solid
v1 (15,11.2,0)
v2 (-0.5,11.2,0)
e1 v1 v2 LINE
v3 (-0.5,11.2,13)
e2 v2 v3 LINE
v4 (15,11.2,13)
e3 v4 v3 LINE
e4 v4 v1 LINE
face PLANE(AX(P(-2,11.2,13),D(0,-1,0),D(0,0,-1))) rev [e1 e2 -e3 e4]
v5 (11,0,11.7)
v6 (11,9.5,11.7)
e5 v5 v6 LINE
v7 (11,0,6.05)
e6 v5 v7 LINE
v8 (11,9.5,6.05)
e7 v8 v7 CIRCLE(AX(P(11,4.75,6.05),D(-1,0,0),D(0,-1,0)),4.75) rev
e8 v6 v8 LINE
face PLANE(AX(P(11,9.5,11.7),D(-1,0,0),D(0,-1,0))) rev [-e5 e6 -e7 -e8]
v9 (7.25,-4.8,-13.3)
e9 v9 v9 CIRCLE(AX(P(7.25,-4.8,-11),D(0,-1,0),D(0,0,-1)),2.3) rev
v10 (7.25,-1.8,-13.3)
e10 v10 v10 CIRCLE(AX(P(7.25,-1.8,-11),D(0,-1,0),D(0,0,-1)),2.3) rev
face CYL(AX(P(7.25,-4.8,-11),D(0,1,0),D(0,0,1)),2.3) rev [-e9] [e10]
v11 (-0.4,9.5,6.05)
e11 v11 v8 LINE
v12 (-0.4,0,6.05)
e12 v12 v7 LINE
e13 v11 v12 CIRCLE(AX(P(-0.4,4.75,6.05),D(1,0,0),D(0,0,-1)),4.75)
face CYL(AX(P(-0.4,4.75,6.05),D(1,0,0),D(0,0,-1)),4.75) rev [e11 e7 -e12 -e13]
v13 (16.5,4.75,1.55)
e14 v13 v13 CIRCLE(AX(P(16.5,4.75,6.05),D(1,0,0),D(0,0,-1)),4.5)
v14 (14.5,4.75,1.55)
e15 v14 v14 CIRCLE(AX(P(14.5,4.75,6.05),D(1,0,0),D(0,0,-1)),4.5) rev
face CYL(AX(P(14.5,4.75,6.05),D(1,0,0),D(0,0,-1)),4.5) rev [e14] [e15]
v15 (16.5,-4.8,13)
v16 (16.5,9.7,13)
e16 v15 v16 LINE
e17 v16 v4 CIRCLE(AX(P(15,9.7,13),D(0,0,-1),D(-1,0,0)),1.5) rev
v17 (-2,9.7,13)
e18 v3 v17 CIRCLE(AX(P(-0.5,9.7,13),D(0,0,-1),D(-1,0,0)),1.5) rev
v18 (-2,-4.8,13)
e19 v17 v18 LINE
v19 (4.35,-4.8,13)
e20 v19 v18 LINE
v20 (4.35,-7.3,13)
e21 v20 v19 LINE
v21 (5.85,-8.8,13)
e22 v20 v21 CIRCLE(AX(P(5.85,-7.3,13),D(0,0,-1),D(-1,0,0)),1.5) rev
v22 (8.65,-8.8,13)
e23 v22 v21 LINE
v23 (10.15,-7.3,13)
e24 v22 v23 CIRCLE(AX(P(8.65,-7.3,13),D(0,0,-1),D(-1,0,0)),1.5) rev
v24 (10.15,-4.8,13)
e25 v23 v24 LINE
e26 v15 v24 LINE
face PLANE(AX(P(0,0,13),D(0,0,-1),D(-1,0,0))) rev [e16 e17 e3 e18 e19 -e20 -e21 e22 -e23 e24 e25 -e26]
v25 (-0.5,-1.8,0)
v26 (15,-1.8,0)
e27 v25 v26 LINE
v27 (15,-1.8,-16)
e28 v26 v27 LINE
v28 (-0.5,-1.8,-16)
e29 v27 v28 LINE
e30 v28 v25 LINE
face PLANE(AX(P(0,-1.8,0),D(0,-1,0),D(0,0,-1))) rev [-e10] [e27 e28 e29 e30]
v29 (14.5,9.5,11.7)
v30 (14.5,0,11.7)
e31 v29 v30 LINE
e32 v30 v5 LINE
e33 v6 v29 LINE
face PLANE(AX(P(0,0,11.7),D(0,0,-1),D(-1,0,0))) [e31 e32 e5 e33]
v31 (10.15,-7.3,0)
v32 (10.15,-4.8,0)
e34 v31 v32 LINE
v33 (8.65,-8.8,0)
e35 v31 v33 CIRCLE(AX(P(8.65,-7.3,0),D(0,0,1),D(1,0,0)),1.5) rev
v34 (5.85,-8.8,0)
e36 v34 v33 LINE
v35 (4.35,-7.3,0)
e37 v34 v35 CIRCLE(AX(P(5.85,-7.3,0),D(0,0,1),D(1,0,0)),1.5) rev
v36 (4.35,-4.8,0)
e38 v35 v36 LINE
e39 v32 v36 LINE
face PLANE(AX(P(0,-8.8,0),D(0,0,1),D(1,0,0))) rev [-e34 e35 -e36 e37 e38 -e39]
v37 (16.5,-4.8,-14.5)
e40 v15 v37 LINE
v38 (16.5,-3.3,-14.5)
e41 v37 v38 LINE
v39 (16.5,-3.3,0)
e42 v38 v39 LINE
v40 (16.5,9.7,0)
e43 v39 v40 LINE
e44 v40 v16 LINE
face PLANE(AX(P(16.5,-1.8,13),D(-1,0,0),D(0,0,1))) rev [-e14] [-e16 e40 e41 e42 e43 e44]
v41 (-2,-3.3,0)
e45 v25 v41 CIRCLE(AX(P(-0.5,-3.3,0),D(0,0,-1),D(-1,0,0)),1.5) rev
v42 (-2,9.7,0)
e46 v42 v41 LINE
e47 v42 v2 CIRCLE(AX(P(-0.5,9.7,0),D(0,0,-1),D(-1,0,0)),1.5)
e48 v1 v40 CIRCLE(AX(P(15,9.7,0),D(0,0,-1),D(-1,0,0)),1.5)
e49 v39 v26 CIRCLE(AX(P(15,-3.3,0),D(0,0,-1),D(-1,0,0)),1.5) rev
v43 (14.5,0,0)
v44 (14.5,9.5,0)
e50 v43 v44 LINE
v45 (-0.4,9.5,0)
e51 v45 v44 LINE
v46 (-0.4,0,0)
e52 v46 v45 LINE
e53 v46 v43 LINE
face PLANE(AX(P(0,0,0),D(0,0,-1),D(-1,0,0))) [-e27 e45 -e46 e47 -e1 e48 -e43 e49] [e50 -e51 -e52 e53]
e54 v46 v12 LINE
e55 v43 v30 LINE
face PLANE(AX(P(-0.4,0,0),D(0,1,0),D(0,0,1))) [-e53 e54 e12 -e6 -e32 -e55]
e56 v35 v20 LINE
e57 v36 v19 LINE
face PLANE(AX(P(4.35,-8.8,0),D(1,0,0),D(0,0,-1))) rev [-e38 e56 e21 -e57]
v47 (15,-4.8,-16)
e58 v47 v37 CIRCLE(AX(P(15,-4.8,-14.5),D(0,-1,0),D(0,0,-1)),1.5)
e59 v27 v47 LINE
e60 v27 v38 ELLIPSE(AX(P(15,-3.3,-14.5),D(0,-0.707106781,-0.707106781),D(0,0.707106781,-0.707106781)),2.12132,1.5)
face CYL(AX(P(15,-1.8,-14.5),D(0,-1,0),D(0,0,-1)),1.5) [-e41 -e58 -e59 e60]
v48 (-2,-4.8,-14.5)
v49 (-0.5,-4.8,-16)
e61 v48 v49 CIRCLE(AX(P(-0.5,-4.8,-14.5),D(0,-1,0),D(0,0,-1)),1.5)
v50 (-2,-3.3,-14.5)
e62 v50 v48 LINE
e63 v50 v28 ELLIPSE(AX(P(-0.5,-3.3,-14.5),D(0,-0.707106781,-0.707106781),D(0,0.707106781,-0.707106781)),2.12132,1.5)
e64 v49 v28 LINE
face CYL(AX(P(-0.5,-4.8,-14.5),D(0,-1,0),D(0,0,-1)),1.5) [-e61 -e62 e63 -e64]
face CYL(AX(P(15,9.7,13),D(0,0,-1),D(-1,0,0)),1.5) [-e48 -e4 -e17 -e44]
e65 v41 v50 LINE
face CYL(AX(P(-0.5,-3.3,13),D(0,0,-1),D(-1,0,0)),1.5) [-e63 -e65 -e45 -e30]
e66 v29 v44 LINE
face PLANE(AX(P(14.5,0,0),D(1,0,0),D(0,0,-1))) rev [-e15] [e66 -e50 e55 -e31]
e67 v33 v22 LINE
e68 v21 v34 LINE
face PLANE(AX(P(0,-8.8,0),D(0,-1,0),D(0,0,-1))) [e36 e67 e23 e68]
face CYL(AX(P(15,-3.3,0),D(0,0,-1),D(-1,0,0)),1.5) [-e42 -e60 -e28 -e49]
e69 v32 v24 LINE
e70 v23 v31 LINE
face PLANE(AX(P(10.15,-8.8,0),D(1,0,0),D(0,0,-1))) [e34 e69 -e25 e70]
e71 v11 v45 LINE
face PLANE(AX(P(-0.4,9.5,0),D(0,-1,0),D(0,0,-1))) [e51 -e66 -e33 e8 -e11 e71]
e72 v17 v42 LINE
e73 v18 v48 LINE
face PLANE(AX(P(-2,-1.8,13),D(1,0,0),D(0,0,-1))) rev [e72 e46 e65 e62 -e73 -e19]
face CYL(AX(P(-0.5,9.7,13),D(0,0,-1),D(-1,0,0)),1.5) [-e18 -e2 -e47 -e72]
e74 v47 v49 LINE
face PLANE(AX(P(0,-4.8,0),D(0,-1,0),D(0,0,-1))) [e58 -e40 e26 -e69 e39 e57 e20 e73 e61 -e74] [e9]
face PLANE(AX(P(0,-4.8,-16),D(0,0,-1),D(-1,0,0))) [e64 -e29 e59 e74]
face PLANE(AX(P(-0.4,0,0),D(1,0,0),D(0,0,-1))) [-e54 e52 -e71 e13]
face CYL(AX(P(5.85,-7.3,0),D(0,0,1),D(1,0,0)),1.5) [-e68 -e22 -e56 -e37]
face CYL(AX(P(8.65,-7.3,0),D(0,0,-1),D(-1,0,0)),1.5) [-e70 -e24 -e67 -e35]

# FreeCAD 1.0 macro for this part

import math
import FreeCAD as App
import Part
import Sketcher

V = App.Vector
Q = App.Units.Quantity


def edges_at(feature, points):
    """Names of the edges that pass closest to the given points."""
    edges = feature.Shape.Edges
    near = lambda p: min(range(len(edges)), key=lambda i: edges[i].distToShape(Part.Vertex(*p))[0])
    return sorted({f"Edge{near(p) + 1}" for p in points})


def add_polygon(sketch, points):
    """Adds a closed chain of lines whose ends are joined by coincident constraints."""
    first, n = sketch.GeometryCount, len(points)
    for a, b in zip(points, points[1:] + points[:1]):
        sketch.addGeometry(Part.LineSegment(App.Vector(*a, 0), App.Vector(*b, 0)), False)
    for i in range(n):
        sketch.addConstraint(Sketcher.Constraint("Coincident", first + i, 2, first + (i + 1) % n, 1))

doc = App.newDocument("Part")
params = doc.addObject("Spreadsheet::Sheet", "Params")
for row, (alias, value) in enumerate([
    ("sketch1_height", "13 mm"),
    ("sketch1_width", "18.5 mm"),
    ("pad1_length", "13 mm"),
    ("sketch2_diameter", "9 mm"),
    ("pocket1_length", "2 mm"),
    ("sketch3_radius", "4.75 mm"),
    ("sketch3_height", "6.05 mm"),
    ("pocket2_length", "14.9 mm"),
    ("sketch4_width", "3.5 mm"),
    ("sketch4_height", "9.5 mm"),
    ("pocket3_length", "11.7 mm"),
    ("sketch5_radius", "2.3 mm"),
    ("sketch5_height", "29 mm"),
    ("sketch5_width", "18.5 mm"),
    ("pad2_length", "3 mm"),
    ("sketch6_height", "13 mm"),
    ("sketch6_width", "5.8 mm"),
    ("pad3_length", "7 mm"),
    ("fillet_radius", "1.5 mm"),
], start=1):
    params.set(f"A{row}", alias)
    params.set(f"B{row}", "=" + value)
    params.setAlias(f"B{row}", alias)

body = doc.addObject("PartDesign::Body", "Body")

# Sketch on XY plane
sketch1 = body.newObject("Sketcher::SketchObject", "Sketch")
sketch1.AttachmentSupport = (doc.getObject("XY_Plane"), [""])
sketch1.MapMode = "FlatFace"
add_polygon(sketch1, [(-2, 11), (-2, -2), (16, -2), (16, 11)])  # lines 0-3
sketch1.addConstraint(Sketcher.Constraint("Vertical", 0))
sketch1.addConstraint(Sketcher.Constraint("Horizontal", 1))
sketch1.addConstraint(Sketcher.Constraint("Vertical", 2))
sketch1.addConstraint(Sketcher.Constraint("Horizontal", 3))
sketch1.addConstraint(Sketcher.Constraint("DistanceY", 0, 2, 0, 1, Q("13 mm")))
sketch1.addConstraint(Sketcher.Constraint("DistanceX", 1, 1, 1, 2, Q("18.5 mm")))
sketch1.addConstraint(Sketcher.Constraint("DistanceX", 0, 2, -1, 1, Q("2 mm")))
sketch1.addConstraint(Sketcher.Constraint("DistanceY", 0, 2, -1, 1, Q("1.8 mm")))
sketch1.setExpression("Constraints[8]", "Params.sketch1_height")
sketch1.setExpression("Constraints[9]", "Params.sketch1_width")
pad1 = body.newObject("PartDesign::Pad", "Pad")
pad1.Profile = sketch1
pad1.setExpression("Length", "Params.pad1_length")

# Sketch on YZ plane
sketch2 = body.newObject("Sketcher::SketchObject", "Sketch001")
sketch2.AttachmentSupport = (doc.getObject("YZ_Plane"), [""])
sketch2.MapMode = "FlatFace"
sketch2.AttachmentOffset = App.Placement(V(0, 0, 16.5), App.Rotation())
sketch2.addGeometry(Part.Circle(V(4.8, 6, 0), V(0, 0, 1), 4.5), False)
sketch2.addConstraint(Sketcher.Constraint("Diameter", 0, Q("9 mm")))
sketch2.addConstraint(Sketcher.Constraint("DistanceX", -1, 1, 0, 3, Q("4.75 mm")))
sketch2.addConstraint(Sketcher.Constraint("DistanceY", -1, 1, 0, 3, Q("6.05 mm")))
sketch2.setExpression("Constraints[0]", "Params.sketch2_diameter")
pocket1 = body.newObject("PartDesign::Pocket", "Pocket")
pocket1.Profile = sketch2
pocket1.setExpression("Length", "Params.pocket1_length")

# Sketch on YZ plane
sketch3 = body.newObject("Sketcher::SketchObject", "Sketch002")
sketch3.AttachmentSupport = (doc.getObject("YZ_Plane"), [""])
sketch3.MapMode = "FlatFace"
sketch3.AttachmentOffset = App.Placement(V(0, 0, 14.5), App.Rotation())
sketch3.addGeometry(Part.LineSegment(V(9.5, 0, 0), V(9.5, 6, 0)), False)
sketch3.addGeometry(Part.ArcOfCircle(Part.Circle(V(4.8, 6, 0), V(0, 0, 1), 4.8), math.radians(0), math.radians(180)), False)
sketch3.addGeometry(Part.LineSegment(V(0, 6, 0), V(0, 0, 0)), False)
sketch3.addGeometry(Part.LineSegment(V(0, 0, 0), V(9.5, 0, 0)), False)
sketch3.addConstraint(Sketcher.Constraint("Tangent", 0, 2, 1, 1))
sketch3.addConstraint(Sketcher.Constraint("Tangent", 1, 2, 2, 1))
sketch3.addConstraint(Sketcher.Constraint("Coincident", 2, 2, 3, 1))
sketch3.addConstraint(Sketcher.Constraint("Coincident", 3, 2, 0, 1))
sketch3.addConstraint(Sketcher.Constraint("Vertical", 0))
sketch3.addConstraint(Sketcher.Constraint("Vertical", 2))
sketch3.addConstraint(Sketcher.Constraint("Horizontal", 3))
sketch3.addConstraint(Sketcher.Constraint("Coincident", 2, 2, -1, 1))
sketch3.addConstraint(Sketcher.Constraint("Radius", 1, Q("4.75 mm")))
sketch3.addConstraint(Sketcher.Constraint("DistanceY", 0, 1, 0, 2, Q("6.05 mm")))
sketch3.setExpression("Constraints[8]", "Params.sketch3_radius")
sketch3.setExpression("Constraints[9]", "Params.sketch3_height")
pocket2 = body.newObject("PartDesign::Pocket", "Pocket001")
pocket2.Profile = sketch3
pocket2.setExpression("Length", "Params.pocket2_length")

# Sketch on XY plane
sketch4 = body.newObject("Sketcher::SketchObject", "Sketch003")
sketch4.AttachmentSupport = (doc.getObject("XY_Plane"), [""])
sketch4.MapMode = "FlatFace"
add_polygon(sketch4, [(14.5, 9.5), (14.5, 0), (11, 0), (11, 9.5)])  # lines 0-3
sketch4.addConstraint(Sketcher.Constraint("Vertical", 0))
sketch4.addConstraint(Sketcher.Constraint("Horizontal", 1))
sketch4.addConstraint(Sketcher.Constraint("Vertical", 2))
sketch4.addConstraint(Sketcher.Constraint("Horizontal", 3))
sketch4.addConstraint(Sketcher.Constraint("PointOnObject", 0, 2, -1))
sketch4.addConstraint(Sketcher.Constraint("DistanceX", 1, 2, 1, 1, Q("3.5 mm")))
sketch4.addConstraint(Sketcher.Constraint("DistanceY", 0, 2, 0, 1, Q("9.5 mm")))
sketch4.addConstraint(Sketcher.Constraint("DistanceX", -1, 1, 1, 2, Q("11 mm")))
sketch4.setExpression("Constraints[9]", "Params.sketch4_width")
sketch4.setExpression("Constraints[10]", "Params.sketch4_height")
pocket3 = body.newObject("PartDesign::Pocket", "Pocket002")
pocket3.Profile = sketch4
pocket3.setExpression("Length", "Params.pocket3_length")
pocket3.Reversed = True

# Sketch on XZ plane
sketch5 = body.newObject("Sketcher::SketchObject", "Sketch004")
sketch5.AttachmentSupport = (doc.getObject("XZ_Plane"), [""])
sketch5.MapMode = "FlatFace"
sketch5.AttachmentOffset = App.Placement(V(0, 0, 1.8), App.Rotation())
add_polygon(sketch5, [(16.5, -16), (-2, -16), (-2, 13), (16.5, 13)])  # lines 0-3
sketch5.addGeometry(Part.ArcOfCircle(Part.Circle(V(7.3, -11, 0), V(0, 0, 1), 2.3), math.radians(-90), math.radians(0)), False)  # 4
sketch5.addGeometry(Part.ArcOfCircle(Part.Circle(V(7.3, -11, 0), V(0, 0, 1), 2.3), math.radians(0), math.radians(90)), False)  # 5
sketch5.addGeometry(Part.ArcOfCircle(Part.Circle(V(7.2, -11, 0), V(0, 0, 1), 2.3), math.radians(90), math.radians(270)), False)  # 6
sketch5.addConstraint(Sketcher.Constraint("Tangent", 4, 2, 5, 1))
sketch5.addConstraint(Sketcher.Constraint("Tangent", 5, 2, 6, 1))
sketch5.addConstraint(Sketcher.Constraint("Tangent", 6, 2, 4, 1))
sketch5.addConstraint(Sketcher.Constraint("Horizontal", 0))
sketch5.addConstraint(Sketcher.Constraint("Vertical", 1))
sketch5.addConstraint(Sketcher.Constraint("Horizontal", 2))
sketch5.addConstraint(Sketcher.Constraint("Vertical", 3))
sketch5.addConstraint(Sketcher.Constraint("Horizontal", 6, 3, 4, 2))
sketch5.addConstraint(Sketcher.Constraint("Vertical", 6, 3, 5, 2))
sketch5.addConstraint(Sketcher.Constraint("Vertical", 5, 2, 6, 2))
sketch5.addConstraint(Sketcher.Constraint("Radius", 4, Q("2.3 mm")))
sketch5.addConstraint(Sketcher.Constraint("DistanceY", 1, 1, 1, 2, Q("29 mm")))
sketch5.addConstraint(Sketcher.Constraint("DistanceX", 0, 2, 0, 1, Q("18.5 mm")))
sketch5.addConstraint(Sketcher.Constraint("DistanceY", 4, 3, -1, 1, Q("11 mm")))
sketch5.addConstraint(Sketcher.Constraint("DistanceX", 0, 2, -1, 1, Q("2 mm")))
sketch5.addConstraint(Sketcher.Constraint("DistanceY", 0, 2, -1, 1, Q("16 mm")))
sketch5.addConstraint(Sketcher.Constraint("DistanceX", -1, 1, 4, 3, Q("7.25 mm")))
sketch5.setExpression("Constraints[14]", "Params.sketch5_radius")
sketch5.setExpression("Constraints[15]", "Params.sketch5_height")
sketch5.setExpression("Constraints[16]", "Params.sketch5_width")
pad2 = body.newObject("PartDesign::Pad", "Pad001")
pad2.Profile = sketch5
pad2.setExpression("Length", "Params.pad2_length")

# Sketch on XZ plane
sketch6 = body.newObject("Sketcher::SketchObject", "Sketch005")
sketch6.AttachmentSupport = (doc.getObject("XZ_Plane"), [""])
sketch6.MapMode = "FlatFace"
sketch6.AttachmentOffset = App.Placement(V(0, 0, 1.8), App.Rotation())
add_polygon(sketch6, [(4, 0), (4, 13), (10, 13), (10, 0)])  # lines 0-3
sketch6.addConstraint(Sketcher.Constraint("Vertical", 0))
sketch6.addConstraint(Sketcher.Constraint("Horizontal", 1))
sketch6.addConstraint(Sketcher.Constraint("Vertical", 2))
sketch6.addConstraint(Sketcher.Constraint("Horizontal", 3))
sketch6.addConstraint(Sketcher.Constraint("PointOnObject", 2, 2, -1))
sketch6.addConstraint(Sketcher.Constraint("DistanceY", 0, 1, 0, 2, Q("13 mm")))
sketch6.addConstraint(Sketcher.Constraint("DistanceX", 1, 1, 1, 2, Q("5.8 mm")))
sketch6.addConstraint(Sketcher.Constraint("DistanceX", -1, 1, 0, 2, Q("4.35 mm")))
sketch6.setExpression("Constraints[9]", "Params.sketch6_height")
sketch6.setExpression("Constraints[10]", "Params.sketch6_width")
pad3 = body.newObject("PartDesign::Pad", "Pad002")
pad3.Profile = sketch6
pad3.setExpression("Length", "Params.pad3_length")
doc.recompute()

fillet = body.newObject("PartDesign::Fillet", "Fillet")
fillet.Base = (pad3, edges_at(pad3, [
    (10.15, -8.8, 6.5),
    (4.35, -8.8, 6.5),
    (16.5, -3.3, -16),
    (-2, -3.3, -16),
    (-2, -1.8, -8),
    (16.5, -1.8, -8),
    (16.5, 11.2, 6.5),
    (-2, 11.2, 6.5),
]))
fillet.setExpression("Radius", "Params.fillet_radius")

doc.recompute()
